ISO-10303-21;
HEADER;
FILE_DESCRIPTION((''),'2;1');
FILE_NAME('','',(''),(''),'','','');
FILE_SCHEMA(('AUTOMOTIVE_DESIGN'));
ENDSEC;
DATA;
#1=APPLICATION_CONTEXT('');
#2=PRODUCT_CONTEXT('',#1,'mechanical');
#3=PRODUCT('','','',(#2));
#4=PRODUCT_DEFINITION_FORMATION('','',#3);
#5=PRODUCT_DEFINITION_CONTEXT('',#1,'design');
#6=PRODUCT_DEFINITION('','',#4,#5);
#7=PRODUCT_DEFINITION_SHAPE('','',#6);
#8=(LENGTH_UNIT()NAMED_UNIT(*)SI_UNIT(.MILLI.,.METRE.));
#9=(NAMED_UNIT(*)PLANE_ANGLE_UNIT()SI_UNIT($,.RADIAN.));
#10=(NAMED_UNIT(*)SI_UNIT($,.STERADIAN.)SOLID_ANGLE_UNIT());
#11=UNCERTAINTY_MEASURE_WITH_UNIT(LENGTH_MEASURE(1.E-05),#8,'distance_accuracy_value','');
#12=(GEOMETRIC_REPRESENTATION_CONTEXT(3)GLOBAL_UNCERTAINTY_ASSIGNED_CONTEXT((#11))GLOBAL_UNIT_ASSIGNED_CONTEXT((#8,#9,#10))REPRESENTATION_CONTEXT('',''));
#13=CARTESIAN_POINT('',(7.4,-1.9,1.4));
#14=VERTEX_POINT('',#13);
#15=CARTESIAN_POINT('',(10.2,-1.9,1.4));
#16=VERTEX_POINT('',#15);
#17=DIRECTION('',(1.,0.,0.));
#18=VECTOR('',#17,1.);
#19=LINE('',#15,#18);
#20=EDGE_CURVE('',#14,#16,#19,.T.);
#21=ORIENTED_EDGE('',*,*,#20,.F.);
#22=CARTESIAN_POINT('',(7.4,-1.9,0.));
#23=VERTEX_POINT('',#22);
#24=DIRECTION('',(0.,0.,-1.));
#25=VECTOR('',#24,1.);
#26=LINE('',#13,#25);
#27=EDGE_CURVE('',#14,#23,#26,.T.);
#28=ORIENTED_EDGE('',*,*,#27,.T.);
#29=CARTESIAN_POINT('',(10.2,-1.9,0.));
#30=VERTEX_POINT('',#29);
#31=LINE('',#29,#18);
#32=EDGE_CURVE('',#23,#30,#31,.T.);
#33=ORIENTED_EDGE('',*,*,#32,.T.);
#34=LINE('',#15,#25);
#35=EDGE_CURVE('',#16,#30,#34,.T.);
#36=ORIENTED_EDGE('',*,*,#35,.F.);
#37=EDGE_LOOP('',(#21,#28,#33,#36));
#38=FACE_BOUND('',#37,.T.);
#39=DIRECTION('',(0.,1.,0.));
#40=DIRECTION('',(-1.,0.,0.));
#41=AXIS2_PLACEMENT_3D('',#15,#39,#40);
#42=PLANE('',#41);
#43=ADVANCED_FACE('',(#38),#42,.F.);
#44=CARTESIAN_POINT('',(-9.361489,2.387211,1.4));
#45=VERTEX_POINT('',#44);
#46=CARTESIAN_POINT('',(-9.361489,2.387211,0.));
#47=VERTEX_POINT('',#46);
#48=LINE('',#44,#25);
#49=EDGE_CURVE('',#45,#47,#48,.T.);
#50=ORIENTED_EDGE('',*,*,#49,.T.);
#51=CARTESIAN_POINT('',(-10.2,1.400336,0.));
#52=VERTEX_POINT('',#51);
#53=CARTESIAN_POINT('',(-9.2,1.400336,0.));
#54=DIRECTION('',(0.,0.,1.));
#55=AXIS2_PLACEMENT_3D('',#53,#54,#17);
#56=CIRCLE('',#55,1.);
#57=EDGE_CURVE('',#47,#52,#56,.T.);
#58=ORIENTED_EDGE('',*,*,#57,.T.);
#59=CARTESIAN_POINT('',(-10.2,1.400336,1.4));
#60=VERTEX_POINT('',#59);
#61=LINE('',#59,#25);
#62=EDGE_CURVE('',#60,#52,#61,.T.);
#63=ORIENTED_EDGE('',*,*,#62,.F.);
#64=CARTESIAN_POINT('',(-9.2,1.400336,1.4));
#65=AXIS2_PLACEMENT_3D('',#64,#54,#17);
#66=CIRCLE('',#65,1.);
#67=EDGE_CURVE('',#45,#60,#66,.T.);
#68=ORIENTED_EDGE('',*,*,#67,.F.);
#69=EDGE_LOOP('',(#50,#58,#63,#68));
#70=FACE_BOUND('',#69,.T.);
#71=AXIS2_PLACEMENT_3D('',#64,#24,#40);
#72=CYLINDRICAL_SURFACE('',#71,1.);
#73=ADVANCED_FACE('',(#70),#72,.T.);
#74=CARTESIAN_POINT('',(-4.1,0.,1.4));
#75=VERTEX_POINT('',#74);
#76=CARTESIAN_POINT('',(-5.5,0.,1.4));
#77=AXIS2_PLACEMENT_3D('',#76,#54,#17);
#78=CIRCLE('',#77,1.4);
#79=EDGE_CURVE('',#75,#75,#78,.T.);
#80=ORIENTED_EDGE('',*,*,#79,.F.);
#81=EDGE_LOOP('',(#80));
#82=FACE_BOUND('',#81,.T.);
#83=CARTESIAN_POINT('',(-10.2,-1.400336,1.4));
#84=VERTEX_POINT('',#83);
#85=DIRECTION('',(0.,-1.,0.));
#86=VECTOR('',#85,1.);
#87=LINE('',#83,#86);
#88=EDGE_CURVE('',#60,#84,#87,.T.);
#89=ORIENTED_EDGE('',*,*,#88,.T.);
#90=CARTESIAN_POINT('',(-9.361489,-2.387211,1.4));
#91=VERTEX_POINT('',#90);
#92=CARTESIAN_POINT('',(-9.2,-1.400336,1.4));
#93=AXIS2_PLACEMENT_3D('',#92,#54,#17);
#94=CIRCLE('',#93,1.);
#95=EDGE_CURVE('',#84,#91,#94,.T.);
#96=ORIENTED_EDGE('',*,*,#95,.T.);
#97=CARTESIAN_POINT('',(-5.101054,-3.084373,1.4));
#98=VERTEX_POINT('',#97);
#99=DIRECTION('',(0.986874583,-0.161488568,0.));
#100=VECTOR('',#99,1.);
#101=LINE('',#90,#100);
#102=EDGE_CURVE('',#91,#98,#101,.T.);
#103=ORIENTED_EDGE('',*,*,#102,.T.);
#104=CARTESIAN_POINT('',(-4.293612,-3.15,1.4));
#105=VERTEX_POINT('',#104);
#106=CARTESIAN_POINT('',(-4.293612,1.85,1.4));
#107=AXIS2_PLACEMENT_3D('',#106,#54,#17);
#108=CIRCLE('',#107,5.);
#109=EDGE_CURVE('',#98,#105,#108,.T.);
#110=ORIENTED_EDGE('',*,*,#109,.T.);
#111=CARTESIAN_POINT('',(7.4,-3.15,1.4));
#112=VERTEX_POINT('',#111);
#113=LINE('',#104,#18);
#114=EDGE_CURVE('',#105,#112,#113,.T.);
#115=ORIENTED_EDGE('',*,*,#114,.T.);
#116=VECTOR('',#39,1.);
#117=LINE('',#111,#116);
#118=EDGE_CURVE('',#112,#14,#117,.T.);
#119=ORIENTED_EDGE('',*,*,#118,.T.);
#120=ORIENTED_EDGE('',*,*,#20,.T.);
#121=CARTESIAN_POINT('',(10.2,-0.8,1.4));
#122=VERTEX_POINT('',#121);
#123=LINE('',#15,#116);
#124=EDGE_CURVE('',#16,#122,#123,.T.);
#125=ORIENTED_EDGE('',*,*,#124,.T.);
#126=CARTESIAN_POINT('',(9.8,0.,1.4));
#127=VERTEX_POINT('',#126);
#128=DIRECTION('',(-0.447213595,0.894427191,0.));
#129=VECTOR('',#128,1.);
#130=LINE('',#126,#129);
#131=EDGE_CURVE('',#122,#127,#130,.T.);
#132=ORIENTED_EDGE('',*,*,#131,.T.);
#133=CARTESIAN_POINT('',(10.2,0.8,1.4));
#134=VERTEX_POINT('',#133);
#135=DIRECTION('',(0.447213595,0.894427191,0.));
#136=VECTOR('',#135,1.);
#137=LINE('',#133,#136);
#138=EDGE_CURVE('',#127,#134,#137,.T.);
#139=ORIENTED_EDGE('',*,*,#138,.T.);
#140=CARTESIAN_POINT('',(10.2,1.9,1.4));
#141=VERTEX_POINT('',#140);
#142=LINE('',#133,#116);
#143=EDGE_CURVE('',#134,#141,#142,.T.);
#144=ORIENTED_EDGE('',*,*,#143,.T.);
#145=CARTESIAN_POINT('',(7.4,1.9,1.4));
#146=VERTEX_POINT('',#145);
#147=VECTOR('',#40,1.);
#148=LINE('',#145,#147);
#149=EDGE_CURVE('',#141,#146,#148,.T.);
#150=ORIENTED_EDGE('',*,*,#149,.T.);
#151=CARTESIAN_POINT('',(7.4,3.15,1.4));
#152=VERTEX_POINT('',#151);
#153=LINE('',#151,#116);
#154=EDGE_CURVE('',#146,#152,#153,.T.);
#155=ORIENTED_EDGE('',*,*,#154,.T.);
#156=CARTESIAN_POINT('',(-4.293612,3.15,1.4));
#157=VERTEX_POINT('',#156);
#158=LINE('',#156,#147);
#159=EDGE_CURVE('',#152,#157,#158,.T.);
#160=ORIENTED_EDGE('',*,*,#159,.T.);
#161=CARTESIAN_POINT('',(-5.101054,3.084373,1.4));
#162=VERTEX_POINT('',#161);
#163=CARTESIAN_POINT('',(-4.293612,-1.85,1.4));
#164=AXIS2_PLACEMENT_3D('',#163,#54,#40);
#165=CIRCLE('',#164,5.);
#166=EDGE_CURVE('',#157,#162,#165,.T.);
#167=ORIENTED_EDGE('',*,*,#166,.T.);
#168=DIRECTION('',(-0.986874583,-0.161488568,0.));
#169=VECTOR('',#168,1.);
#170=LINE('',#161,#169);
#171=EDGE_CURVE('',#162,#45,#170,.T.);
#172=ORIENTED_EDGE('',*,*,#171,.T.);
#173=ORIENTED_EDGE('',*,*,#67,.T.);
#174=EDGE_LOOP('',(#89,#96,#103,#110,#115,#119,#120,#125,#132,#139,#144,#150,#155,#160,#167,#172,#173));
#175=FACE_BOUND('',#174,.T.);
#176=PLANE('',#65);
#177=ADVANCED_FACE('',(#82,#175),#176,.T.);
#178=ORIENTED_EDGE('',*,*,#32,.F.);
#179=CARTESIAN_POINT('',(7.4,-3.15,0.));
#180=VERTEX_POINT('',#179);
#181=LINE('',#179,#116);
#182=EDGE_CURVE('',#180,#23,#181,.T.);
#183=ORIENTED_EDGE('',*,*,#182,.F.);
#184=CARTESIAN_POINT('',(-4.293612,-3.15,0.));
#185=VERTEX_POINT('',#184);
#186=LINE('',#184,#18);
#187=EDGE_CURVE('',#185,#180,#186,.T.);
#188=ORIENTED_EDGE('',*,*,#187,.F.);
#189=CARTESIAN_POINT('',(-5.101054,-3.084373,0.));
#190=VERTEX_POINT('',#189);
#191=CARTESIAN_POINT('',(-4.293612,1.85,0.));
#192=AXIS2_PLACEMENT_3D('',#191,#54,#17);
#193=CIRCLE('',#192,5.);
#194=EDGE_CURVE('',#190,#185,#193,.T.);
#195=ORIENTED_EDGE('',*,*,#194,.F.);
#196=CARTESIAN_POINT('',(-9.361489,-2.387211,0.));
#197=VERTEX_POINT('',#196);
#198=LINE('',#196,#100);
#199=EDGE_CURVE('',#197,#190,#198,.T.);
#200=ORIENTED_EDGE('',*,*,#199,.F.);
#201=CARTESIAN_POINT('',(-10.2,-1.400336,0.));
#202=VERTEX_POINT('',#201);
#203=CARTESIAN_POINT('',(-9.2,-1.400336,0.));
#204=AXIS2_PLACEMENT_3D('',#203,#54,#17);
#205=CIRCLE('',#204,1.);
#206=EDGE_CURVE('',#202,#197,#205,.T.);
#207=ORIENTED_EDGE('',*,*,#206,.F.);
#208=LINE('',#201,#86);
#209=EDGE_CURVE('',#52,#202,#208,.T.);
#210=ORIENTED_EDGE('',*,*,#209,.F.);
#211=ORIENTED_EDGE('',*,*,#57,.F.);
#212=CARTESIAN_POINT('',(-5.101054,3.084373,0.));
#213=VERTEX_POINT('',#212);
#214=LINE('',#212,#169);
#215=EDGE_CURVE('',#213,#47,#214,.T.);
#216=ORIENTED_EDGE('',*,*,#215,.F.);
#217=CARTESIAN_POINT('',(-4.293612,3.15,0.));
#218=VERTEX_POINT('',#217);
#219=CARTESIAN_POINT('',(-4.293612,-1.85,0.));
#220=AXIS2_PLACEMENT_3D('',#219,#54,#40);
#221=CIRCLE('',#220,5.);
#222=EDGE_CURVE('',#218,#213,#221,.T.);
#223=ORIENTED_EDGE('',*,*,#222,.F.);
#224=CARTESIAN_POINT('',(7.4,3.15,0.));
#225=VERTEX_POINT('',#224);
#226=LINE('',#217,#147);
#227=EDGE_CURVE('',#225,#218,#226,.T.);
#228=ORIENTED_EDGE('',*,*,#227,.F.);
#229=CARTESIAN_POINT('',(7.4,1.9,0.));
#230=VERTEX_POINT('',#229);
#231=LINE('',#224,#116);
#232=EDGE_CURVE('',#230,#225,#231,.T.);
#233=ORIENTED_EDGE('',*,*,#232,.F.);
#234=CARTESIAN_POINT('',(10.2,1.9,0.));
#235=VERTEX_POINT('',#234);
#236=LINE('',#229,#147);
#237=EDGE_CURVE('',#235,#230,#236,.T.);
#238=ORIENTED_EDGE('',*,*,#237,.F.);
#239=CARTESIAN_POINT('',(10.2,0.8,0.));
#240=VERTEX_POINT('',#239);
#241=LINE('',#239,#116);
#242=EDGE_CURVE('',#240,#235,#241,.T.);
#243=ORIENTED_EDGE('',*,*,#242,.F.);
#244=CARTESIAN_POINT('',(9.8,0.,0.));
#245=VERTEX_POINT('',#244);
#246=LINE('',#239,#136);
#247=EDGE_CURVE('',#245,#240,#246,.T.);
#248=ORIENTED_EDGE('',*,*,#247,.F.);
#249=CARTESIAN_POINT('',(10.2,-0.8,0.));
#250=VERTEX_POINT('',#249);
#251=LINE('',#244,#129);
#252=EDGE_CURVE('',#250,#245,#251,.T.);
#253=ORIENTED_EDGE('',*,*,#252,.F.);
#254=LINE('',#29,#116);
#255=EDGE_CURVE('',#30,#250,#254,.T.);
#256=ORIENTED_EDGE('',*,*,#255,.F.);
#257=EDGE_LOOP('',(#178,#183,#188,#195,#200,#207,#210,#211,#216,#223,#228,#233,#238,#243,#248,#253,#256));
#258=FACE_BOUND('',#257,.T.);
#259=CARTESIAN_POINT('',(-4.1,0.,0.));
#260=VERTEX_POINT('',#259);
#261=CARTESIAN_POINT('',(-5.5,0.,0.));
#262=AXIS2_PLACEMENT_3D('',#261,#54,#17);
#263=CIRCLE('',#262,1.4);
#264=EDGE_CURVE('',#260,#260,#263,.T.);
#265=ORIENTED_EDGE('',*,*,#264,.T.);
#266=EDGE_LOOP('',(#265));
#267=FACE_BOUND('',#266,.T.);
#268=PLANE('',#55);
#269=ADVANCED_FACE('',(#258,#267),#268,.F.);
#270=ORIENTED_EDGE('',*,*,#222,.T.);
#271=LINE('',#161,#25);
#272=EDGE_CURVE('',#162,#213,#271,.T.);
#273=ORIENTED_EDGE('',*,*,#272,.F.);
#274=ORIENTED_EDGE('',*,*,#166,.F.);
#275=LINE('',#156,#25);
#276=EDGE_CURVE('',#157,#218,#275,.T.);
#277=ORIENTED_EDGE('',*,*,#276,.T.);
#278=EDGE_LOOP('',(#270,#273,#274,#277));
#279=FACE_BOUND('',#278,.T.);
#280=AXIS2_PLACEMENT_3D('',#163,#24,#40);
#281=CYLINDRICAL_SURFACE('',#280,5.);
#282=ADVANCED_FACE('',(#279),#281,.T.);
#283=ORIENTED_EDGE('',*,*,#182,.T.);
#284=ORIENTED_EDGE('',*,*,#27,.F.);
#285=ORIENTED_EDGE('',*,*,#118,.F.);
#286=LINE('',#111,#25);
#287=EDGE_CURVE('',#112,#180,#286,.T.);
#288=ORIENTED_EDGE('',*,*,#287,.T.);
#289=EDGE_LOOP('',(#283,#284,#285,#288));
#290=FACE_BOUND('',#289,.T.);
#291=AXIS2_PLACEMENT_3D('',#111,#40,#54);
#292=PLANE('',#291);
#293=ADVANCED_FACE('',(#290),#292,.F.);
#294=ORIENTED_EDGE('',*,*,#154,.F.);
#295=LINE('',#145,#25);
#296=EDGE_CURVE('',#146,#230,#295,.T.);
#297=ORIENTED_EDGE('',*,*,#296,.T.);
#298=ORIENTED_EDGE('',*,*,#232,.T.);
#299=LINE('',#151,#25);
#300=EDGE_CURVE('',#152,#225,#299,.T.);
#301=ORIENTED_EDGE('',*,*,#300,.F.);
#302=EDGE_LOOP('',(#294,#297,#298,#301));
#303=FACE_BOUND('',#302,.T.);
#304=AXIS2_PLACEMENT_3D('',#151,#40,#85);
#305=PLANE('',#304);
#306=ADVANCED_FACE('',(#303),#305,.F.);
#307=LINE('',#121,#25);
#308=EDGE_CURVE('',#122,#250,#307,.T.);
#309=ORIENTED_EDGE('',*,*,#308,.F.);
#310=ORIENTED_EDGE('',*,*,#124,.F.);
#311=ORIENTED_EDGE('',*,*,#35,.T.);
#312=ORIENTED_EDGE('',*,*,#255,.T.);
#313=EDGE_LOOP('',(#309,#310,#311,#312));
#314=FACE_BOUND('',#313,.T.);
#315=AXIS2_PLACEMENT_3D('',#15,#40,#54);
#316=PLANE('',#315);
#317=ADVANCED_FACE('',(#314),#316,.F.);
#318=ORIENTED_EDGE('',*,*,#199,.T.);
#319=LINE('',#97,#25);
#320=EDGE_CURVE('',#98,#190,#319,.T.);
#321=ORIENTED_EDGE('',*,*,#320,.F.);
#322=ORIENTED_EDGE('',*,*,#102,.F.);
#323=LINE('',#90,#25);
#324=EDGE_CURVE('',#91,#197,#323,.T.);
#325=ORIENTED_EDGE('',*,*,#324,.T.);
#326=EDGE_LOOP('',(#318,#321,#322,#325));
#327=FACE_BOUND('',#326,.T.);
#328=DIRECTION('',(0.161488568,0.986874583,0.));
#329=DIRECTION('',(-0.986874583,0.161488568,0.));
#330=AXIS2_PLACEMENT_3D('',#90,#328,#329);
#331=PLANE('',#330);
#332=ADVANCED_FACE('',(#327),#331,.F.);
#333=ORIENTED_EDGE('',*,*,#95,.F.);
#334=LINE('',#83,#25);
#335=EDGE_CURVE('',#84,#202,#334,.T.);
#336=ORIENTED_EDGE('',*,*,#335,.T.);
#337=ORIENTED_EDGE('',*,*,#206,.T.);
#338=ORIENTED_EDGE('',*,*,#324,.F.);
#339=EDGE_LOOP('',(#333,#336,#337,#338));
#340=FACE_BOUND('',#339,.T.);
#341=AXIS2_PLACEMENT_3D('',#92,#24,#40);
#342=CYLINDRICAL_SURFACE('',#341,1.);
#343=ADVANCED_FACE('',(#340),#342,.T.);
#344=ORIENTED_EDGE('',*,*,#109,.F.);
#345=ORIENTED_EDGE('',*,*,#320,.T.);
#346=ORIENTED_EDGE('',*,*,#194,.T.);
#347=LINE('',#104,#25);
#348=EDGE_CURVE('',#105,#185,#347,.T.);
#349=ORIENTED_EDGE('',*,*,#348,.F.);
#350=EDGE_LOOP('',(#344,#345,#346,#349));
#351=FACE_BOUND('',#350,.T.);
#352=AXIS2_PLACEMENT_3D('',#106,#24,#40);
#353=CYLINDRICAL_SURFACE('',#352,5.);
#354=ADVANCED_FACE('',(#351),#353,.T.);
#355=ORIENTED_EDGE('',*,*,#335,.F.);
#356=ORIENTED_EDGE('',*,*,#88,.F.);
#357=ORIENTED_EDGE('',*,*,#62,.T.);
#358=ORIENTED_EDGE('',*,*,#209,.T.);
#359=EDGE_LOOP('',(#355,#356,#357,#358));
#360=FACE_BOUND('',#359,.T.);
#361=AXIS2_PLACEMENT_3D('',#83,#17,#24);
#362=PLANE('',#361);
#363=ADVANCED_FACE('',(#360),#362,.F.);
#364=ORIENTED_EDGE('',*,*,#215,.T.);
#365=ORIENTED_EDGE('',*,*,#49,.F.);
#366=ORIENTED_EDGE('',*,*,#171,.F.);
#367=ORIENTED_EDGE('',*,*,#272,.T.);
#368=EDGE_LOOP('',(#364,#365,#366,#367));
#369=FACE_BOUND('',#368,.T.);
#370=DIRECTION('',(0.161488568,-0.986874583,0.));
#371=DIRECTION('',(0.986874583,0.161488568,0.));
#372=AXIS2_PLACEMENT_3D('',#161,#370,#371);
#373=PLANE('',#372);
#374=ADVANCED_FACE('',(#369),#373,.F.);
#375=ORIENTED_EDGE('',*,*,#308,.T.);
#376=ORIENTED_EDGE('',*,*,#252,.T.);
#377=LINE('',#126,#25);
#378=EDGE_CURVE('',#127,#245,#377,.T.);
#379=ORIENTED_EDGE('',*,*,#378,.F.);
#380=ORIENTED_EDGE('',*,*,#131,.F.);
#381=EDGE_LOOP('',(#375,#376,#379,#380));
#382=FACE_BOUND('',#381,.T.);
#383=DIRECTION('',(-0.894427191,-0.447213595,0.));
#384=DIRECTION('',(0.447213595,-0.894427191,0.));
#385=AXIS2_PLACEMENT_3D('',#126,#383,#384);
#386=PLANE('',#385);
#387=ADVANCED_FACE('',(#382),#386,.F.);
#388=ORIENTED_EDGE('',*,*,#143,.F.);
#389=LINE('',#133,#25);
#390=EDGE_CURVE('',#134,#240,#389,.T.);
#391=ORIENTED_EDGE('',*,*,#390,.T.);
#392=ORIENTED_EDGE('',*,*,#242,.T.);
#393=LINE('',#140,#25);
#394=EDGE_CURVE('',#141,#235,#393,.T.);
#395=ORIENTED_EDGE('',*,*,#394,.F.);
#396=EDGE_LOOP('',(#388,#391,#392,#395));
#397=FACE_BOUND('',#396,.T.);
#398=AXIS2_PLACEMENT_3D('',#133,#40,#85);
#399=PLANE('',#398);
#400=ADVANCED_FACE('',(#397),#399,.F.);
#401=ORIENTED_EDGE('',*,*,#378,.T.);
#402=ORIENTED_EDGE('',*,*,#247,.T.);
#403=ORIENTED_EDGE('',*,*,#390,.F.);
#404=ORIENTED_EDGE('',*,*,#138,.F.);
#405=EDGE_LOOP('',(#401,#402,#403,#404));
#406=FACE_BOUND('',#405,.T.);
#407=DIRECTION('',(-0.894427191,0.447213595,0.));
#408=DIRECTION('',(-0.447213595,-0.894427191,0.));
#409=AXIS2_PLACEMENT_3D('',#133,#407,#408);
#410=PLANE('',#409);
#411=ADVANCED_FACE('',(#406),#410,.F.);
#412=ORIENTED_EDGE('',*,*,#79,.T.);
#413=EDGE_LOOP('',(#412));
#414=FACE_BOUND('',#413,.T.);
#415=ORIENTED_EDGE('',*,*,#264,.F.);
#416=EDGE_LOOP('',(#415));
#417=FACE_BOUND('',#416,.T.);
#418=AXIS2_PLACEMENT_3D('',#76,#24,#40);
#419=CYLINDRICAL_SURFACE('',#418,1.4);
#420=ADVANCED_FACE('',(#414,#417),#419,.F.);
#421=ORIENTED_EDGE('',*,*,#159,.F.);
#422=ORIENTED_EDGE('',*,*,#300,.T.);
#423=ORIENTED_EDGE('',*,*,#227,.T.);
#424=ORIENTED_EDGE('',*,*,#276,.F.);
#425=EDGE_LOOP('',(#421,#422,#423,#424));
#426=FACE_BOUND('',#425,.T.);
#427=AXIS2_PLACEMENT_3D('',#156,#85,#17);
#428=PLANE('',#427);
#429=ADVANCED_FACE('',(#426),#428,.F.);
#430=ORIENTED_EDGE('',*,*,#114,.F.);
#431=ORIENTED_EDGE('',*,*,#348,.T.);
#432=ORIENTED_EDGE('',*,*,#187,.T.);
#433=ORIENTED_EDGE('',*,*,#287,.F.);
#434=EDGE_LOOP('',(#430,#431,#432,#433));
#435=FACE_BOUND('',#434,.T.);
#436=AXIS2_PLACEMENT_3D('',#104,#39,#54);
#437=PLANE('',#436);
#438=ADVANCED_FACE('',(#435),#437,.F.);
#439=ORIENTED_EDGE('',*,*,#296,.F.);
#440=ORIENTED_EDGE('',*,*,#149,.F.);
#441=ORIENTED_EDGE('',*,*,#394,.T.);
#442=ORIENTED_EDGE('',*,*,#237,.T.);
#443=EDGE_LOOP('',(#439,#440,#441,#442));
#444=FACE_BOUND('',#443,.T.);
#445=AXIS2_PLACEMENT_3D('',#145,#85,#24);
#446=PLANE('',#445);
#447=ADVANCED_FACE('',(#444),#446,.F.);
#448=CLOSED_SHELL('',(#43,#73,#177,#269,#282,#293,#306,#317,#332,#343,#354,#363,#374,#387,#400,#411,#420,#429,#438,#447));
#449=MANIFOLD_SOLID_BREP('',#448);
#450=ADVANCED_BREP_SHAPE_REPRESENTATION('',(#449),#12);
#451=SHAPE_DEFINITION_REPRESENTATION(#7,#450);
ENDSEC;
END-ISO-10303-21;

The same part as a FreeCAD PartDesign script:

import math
import FreeCAD as App
import Part
import Sketcher
from FreeCAD import Vector
Q = App.Units.Quantity

doc = App.newDocument("Part")
body = doc.addObject("PartDesign::Body", "Body")

sketch1 = doc.addObject("Sketcher::SketchObject", "Sketch")
body.addObject(sketch1)
sketch1.AttachmentSupport = (doc.XY_Plane, [""])
sketch1.MapMode = "FlatFace"
sketch1.addGeometry(Part.LineSegment(Vector(-5.101054, 3.084373, 0), Vector(-9.361489, 2.387211, 0)), False)
sketch1.addGeometry(Part.ArcOfCircle(Part.Circle(Vector(-9.2, 1.400336, 0), Vector(0, 0, 1), 1), math.radians(99.293309), math.radians(180)), False)
sketch1.addGeometry(Part.LineSegment(Vector(-10.2, 1.400336, 0), Vector(-10.2, -1.400336, 0)), False)
sketch1.addGeometry(Part.ArcOfCircle(Part.Circle(Vector(-9.2, -1.400336, 0), Vector(0, 0, 1), 1), math.radians(-180), math.radians(-99.293309)), False)
sketch1.addGeometry(Part.LineSegment(Vector(-9.361489, -2.387211, 0), Vector(-5.101054, -3.084373, 0)), False)
sketch1.addGeometry(Part.ArcOfCircle(Part.Circle(Vector(-4.293612, 1.85, 0), Vector(0, 0, 1), 5), math.radians(-99.293309), math.radians(-90)), False)
sketch1.addGeometry(Part.LineSegment(Vector(-4.293612, -3.15, 0), Vector(7.4, -3.15, 0)), False)
sketch1.addGeometry(Part.LineSegment(Vector(7.4, -3.15, 0), Vector(7.4, -1.9, 0)), False)
sketch1.addGeometry(Part.LineSegment(Vector(7.4, -1.9, 0), Vector(10.2, -1.9, 0)), False)
sketch1.addGeometry(Part.LineSegment(Vector(10.2, -1.9, 0), Vector(10.2, -0.8, 0)), False)
sketch1.addGeometry(Part.LineSegment(Vector(10.2, -0.8, 0), Vector(9.8, 0, 0)), False)
sketch1.addGeometry(Part.LineSegment(Vector(9.8, 0, 0), Vector(10.2, 0.8, 0)), False)
sketch1.addGeometry(Part.LineSegment(Vector(10.2, 0.8, 0), Vector(10.2, 1.9, 0)), False)
sketch1.addGeometry(Part.LineSegment(Vector(10.2, 1.9, 0), Vector(7.4, 1.9, 0)), False)
sketch1.addGeometry(Part.LineSegment(Vector(7.4, 1.9, 0), Vector(7.4, 3.15, 0)), False)
sketch1.addGeometry(Part.LineSegment(Vector(7.4, 3.15, 0), Vector(-4.293612, 3.15, 0)), False)
sketch1.addGeometry(Part.ArcOfCircle(Part.Circle(Vector(-4.293612, -1.85, 0), Vector(0, 0, 1), 5), math.radians(90), math.radians(99.293309)), False)
sketch1.addGeometry(Part.Circle(Vector(-5.5, 0, 0), Vector(0, 0, 1), 1.4), False)
sketch1.addConstraint(Sketcher.Constraint("Tangent", 0, 2, 1, 1))
sketch1.addConstraint(Sketcher.Constraint("Tangent", 1, 2, 2, 1))
sketch1.addConstraint(Sketcher.Constraint("Tangent", 2, 2, 3, 1))
sketch1.addConstraint(Sketcher.Constraint("Tangent", 3, 2, 4, 1))
sketch1.addConstraint(Sketcher.Constraint("Tangent", 4, 2, 5, 1))
sketch1.addConstraint(Sketcher.Constraint("Tangent", 5, 2, 6, 1))
sketch1.addConstraint(Sketcher.Constraint("Coincident", 6, 2, 7, 1))
sketch1.addConstraint(Sketcher.Constraint("Coincident", 7, 2, 8, 1))
sketch1.addConstraint(Sketcher.Constraint("Coincident", 8, 2, 9, 1))
sketch1.addConstraint(Sketcher.Constraint("Coincident", 9, 2, 10, 1))
sketch1.addConstraint(Sketcher.Constraint("Coincident", 10, 2, 11, 1))
sketch1.addConstraint(Sketcher.Constraint("Coincident", 11, 2, 12, 1))
sketch1.addConstraint(Sketcher.Constraint("Coincident", 12, 2, 13, 1))
sketch1.addConstraint(Sketcher.Constraint("Coincident", 13, 2, 14, 1))
sketch1.addConstraint(Sketcher.Constraint("Coincident", 14, 2, 15, 1))
sketch1.addConstraint(Sketcher.Constraint("Tangent", 15, 2, 16, 1))
sketch1.addConstraint(Sketcher.Constraint("Tangent", 16, 2, 0, 1))
sketch1.addConstraint(Sketcher.Constraint("Vertical", 2))
sketch1.addConstraint(Sketcher.Constraint("Horizontal", 6))
sketch1.addConstraint(Sketcher.Constraint("Vertical", 7))
sketch1.addConstraint(Sketcher.Constraint("Horizontal", 8))
sketch1.addConstraint(Sketcher.Constraint("Vertical", 9))
sketch1.addConstraint(Sketcher.Constraint("Vertical", 12))
sketch1.addConstraint(Sketcher.Constraint("Horizontal", 13))
sketch1.addConstraint(Sketcher.Constraint("Vertical", 14))
sketch1.addConstraint(Sketcher.Constraint("Horizontal", 15))
sketch1.addConstraint(Sketcher.Constraint("Equal", 1, 3))
sketch1.addConstraint(Sketcher.Constraint("Equal", 5, 16))
sketch1.addConstraint(Sketcher.Constraint("Symmetric", 5, 3, 16, 3, -1))
sketch1.addConstraint(Sketcher.Constraint("Symmetric", 9, 2, 11, 2, -1))
sketch1.addConstraint(Sketcher.Constraint("Symmetric", 7, 2, 13, 2, -1))
sketch1.addConstraint(Sketcher.Constraint("PointOnObject", 17, 3, -1))
sketch1.addConstraint(Sketcher.Constraint("PointOnObject", 10, 2, -1))
sketch1.addConstraint(Sketcher.Constraint("Vertical", 0, 2, 3, 2))
sketch1.addConstraint(Sketcher.Constraint("Radius", 1, Q("1 mm")))
sketch1.addConstraint(Sketcher.Constraint("Radius", 5, Q("5 mm")))
sketch1.addConstraint(Sketcher.Constraint("Diameter", 17, Q("2.8 mm")))
sketch1.addConstraint(Sketcher.Constraint("DistanceX", 8, 1, 8, 2, Q("2.8 mm")))
sketch1.addConstraint(Sketcher.Constraint("DistanceY", 9, 1, 9, 2, Q("1.1 mm")))
sketch1.addConstraint(Sketcher.Constraint("DistanceY", 7, 1, 7, 2, Q("1.25 mm")))
sketch1.addConstraint(Sketcher.Constraint("DistanceX", 1, 3, -1, 1, Q("9.2 mm")))
sketch1.addConstraint(Sketcher.Constraint("DistanceX", 17, 3, -1, 1, Q("5.5 mm")))
sketch1.addConstraint(Sketcher.Constraint("DistanceX", -1, 1, 6, 2, Q("7.4 mm")))
sketch1.addConstraint(Sketcher.Constraint("DistanceY", 7, 2, -1, 1, Q("1.9 mm")))
sketch1.addConstraint(Sketcher.Constraint("DistanceX", -1, 1, 10, 2, Q("9.8 mm")))
sketch1.addConstraint(Sketcher.Constraint("DistanceX", 6, 1, 6, 2, Q("11.693612 mm")))
sketch1.addConstraint(Sketcher.Constraint("DistanceY", 2, 2, 2, 1, Q("2.800673 mm")))
pad1 = doc.addObject("PartDesign::Pad", "Pad")
body.addObject(pad1)
pad1.Profile = sketch1
pad1.Length = 1.4

doc.recompute()
